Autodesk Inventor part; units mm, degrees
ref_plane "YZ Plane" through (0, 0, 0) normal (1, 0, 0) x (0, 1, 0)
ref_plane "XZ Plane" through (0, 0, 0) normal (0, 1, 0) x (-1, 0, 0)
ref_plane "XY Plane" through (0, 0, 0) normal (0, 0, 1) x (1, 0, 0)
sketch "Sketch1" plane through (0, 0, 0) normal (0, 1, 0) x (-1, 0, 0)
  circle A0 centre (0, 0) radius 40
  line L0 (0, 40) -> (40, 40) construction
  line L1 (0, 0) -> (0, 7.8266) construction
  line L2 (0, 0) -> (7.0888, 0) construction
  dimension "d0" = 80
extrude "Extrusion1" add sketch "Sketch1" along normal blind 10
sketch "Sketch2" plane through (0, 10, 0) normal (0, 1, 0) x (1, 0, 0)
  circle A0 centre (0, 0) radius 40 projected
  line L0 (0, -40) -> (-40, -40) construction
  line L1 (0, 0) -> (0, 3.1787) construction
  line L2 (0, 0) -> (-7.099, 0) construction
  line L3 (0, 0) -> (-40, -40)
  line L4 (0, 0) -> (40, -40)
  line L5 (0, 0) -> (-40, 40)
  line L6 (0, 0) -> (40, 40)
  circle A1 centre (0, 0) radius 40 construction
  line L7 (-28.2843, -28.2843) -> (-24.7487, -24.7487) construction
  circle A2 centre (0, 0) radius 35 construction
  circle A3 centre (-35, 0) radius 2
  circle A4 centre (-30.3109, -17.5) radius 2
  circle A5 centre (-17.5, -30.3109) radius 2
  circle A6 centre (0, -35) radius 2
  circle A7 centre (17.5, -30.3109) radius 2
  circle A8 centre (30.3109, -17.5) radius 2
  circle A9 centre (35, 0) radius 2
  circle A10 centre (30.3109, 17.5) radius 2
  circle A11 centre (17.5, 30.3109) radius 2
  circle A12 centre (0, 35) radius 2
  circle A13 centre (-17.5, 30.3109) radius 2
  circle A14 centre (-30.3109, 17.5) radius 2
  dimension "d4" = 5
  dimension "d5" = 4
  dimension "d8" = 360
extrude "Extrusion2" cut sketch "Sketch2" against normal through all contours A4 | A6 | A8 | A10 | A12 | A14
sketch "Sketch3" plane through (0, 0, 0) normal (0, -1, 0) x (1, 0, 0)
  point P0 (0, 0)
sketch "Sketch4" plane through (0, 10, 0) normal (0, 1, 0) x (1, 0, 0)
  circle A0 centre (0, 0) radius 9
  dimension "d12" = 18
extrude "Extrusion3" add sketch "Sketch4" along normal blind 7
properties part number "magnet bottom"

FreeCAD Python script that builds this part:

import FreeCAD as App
import Part
import Sketcher
Q = App.Units.Quantity

doc = App.newDocument("Part")
body = doc.addObject("PartDesign::Body", "Body")

sketch1 = body.newObject("Sketcher::SketchObject", "Sketch")
sketch1.AttachmentSupport = (doc.getObject("XZ_Plane"), [""])
sketch1.MapMode = "FlatFace"
sketch1.addGeometry(Part.Circle(App.Vector(0, 0, 0), App.Vector(0, 0, 1), 40), False)
sketch1.addConstraint([
    Sketcher.Constraint("Coincident", 0, 3, -1, 1),
    Sketcher.Constraint("Diameter", 0, Q("80 mm")),
])
pad1 = body.newObject("PartDesign::Pad", "Pad")
pad1.Profile = sketch1
pad1.Length = 10
pad1.Reversed = True

sketch2 = body.newObject("Sketcher::SketchObject", "Sketch001")
sketch2.AttachmentSupport = (doc.getObject("XZ_Plane"), [""])
sketch2.MapMode = "FlatFace"
sketch2.AttachmentOffset = App.Placement(App.Vector(0, 0, -10), App.Rotation())
sketch2.addGeometry([
    Part.Circle(App.Vector(-30.3, 17.5, 0), App.Vector(0, 0, 1), 2),
    Part.Circle(App.Vector(0, 35, 0), App.Vector(0, 0, 1), 2),
    Part.Circle(App.Vector(30.3, 17.5, 0), App.Vector(0, 0, 1), 2),
    Part.Circle(App.Vector(30.3, -17.5, 0), App.Vector(0, 0, 1), 2),
    Part.Circle(App.Vector(0, -35, 0), App.Vector(0, 0, 1), 2),
    Part.Circle(App.Vector(-30.3, -17.5, 0), App.Vector(0, 0, 1), 2),
], False)
sketch2.addConstraint([
    Sketcher.Constraint("Equal", 0, 1),
    Sketcher.Constraint("Equal", 1, 2),
    Sketcher.Constraint("Equal", 2, 3),
    Sketcher.Constraint("Equal", 3, 4),
    Sketcher.Constraint("Equal", 4, 5),
    Sketcher.Constraint("Symmetric", 0, 3, 3, 3, -1, 1),
    Sketcher.Constraint("Symmetric", 1, 3, 4, 3, -1, 1),
    Sketcher.Constraint("Symmetric", 2, 3, 5, 3, -1, 1),
    Sketcher.Constraint("Symmetric", 0, 3, 2, 3, -2),
    Sketcher.Constraint("PointOnObject", 1, 3, -2),
    Sketcher.Constraint("Diameter", 0, Q("4 mm")),
    Sketcher.Constraint("DistanceY", -1, 1, 1, 3, Q("35 mm")),
    Sketcher.Constraint("DistanceY", 3, 3, 2, 3, Q("35 mm")),
    Sketcher.Constraint("DistanceX", 0, 3, -1, 1, Q("30.311 mm")),
])
pocket1 = body.newObject("PartDesign::Pocket", "Pocket")
pocket1.Profile = sketch2
pocket1.Type = "ThroughAll"
pocket1.Reversed = True

sketch3 = body.newObject("Sketcher::SketchObject", "Sketch002")
sketch3.AttachmentSupport = (doc.getObject("XZ_Plane"), [""])
sketch3.MapMode = "FlatFace"
sketch3.AttachmentOffset = App.Placement(App.Vector(0, 0, -10), App.Rotation())
sketch3.addGeometry(Part.Circle(App.Vector(0, 0, 0), App.Vector(0, 0, 1), 9), False)
sketch3.addConstraint([
    Sketcher.Constraint("Coincident", 0, 3, -1, 1),
    Sketcher.Constraint("Diameter", 0, Q("18 mm")),
])
pad2 = body.newObject("PartDesign::Pad", "Pad001")
pad2.Profile = sketch3
pad2.Length = 7
pad2.Reversed = True

doc.recompute()
